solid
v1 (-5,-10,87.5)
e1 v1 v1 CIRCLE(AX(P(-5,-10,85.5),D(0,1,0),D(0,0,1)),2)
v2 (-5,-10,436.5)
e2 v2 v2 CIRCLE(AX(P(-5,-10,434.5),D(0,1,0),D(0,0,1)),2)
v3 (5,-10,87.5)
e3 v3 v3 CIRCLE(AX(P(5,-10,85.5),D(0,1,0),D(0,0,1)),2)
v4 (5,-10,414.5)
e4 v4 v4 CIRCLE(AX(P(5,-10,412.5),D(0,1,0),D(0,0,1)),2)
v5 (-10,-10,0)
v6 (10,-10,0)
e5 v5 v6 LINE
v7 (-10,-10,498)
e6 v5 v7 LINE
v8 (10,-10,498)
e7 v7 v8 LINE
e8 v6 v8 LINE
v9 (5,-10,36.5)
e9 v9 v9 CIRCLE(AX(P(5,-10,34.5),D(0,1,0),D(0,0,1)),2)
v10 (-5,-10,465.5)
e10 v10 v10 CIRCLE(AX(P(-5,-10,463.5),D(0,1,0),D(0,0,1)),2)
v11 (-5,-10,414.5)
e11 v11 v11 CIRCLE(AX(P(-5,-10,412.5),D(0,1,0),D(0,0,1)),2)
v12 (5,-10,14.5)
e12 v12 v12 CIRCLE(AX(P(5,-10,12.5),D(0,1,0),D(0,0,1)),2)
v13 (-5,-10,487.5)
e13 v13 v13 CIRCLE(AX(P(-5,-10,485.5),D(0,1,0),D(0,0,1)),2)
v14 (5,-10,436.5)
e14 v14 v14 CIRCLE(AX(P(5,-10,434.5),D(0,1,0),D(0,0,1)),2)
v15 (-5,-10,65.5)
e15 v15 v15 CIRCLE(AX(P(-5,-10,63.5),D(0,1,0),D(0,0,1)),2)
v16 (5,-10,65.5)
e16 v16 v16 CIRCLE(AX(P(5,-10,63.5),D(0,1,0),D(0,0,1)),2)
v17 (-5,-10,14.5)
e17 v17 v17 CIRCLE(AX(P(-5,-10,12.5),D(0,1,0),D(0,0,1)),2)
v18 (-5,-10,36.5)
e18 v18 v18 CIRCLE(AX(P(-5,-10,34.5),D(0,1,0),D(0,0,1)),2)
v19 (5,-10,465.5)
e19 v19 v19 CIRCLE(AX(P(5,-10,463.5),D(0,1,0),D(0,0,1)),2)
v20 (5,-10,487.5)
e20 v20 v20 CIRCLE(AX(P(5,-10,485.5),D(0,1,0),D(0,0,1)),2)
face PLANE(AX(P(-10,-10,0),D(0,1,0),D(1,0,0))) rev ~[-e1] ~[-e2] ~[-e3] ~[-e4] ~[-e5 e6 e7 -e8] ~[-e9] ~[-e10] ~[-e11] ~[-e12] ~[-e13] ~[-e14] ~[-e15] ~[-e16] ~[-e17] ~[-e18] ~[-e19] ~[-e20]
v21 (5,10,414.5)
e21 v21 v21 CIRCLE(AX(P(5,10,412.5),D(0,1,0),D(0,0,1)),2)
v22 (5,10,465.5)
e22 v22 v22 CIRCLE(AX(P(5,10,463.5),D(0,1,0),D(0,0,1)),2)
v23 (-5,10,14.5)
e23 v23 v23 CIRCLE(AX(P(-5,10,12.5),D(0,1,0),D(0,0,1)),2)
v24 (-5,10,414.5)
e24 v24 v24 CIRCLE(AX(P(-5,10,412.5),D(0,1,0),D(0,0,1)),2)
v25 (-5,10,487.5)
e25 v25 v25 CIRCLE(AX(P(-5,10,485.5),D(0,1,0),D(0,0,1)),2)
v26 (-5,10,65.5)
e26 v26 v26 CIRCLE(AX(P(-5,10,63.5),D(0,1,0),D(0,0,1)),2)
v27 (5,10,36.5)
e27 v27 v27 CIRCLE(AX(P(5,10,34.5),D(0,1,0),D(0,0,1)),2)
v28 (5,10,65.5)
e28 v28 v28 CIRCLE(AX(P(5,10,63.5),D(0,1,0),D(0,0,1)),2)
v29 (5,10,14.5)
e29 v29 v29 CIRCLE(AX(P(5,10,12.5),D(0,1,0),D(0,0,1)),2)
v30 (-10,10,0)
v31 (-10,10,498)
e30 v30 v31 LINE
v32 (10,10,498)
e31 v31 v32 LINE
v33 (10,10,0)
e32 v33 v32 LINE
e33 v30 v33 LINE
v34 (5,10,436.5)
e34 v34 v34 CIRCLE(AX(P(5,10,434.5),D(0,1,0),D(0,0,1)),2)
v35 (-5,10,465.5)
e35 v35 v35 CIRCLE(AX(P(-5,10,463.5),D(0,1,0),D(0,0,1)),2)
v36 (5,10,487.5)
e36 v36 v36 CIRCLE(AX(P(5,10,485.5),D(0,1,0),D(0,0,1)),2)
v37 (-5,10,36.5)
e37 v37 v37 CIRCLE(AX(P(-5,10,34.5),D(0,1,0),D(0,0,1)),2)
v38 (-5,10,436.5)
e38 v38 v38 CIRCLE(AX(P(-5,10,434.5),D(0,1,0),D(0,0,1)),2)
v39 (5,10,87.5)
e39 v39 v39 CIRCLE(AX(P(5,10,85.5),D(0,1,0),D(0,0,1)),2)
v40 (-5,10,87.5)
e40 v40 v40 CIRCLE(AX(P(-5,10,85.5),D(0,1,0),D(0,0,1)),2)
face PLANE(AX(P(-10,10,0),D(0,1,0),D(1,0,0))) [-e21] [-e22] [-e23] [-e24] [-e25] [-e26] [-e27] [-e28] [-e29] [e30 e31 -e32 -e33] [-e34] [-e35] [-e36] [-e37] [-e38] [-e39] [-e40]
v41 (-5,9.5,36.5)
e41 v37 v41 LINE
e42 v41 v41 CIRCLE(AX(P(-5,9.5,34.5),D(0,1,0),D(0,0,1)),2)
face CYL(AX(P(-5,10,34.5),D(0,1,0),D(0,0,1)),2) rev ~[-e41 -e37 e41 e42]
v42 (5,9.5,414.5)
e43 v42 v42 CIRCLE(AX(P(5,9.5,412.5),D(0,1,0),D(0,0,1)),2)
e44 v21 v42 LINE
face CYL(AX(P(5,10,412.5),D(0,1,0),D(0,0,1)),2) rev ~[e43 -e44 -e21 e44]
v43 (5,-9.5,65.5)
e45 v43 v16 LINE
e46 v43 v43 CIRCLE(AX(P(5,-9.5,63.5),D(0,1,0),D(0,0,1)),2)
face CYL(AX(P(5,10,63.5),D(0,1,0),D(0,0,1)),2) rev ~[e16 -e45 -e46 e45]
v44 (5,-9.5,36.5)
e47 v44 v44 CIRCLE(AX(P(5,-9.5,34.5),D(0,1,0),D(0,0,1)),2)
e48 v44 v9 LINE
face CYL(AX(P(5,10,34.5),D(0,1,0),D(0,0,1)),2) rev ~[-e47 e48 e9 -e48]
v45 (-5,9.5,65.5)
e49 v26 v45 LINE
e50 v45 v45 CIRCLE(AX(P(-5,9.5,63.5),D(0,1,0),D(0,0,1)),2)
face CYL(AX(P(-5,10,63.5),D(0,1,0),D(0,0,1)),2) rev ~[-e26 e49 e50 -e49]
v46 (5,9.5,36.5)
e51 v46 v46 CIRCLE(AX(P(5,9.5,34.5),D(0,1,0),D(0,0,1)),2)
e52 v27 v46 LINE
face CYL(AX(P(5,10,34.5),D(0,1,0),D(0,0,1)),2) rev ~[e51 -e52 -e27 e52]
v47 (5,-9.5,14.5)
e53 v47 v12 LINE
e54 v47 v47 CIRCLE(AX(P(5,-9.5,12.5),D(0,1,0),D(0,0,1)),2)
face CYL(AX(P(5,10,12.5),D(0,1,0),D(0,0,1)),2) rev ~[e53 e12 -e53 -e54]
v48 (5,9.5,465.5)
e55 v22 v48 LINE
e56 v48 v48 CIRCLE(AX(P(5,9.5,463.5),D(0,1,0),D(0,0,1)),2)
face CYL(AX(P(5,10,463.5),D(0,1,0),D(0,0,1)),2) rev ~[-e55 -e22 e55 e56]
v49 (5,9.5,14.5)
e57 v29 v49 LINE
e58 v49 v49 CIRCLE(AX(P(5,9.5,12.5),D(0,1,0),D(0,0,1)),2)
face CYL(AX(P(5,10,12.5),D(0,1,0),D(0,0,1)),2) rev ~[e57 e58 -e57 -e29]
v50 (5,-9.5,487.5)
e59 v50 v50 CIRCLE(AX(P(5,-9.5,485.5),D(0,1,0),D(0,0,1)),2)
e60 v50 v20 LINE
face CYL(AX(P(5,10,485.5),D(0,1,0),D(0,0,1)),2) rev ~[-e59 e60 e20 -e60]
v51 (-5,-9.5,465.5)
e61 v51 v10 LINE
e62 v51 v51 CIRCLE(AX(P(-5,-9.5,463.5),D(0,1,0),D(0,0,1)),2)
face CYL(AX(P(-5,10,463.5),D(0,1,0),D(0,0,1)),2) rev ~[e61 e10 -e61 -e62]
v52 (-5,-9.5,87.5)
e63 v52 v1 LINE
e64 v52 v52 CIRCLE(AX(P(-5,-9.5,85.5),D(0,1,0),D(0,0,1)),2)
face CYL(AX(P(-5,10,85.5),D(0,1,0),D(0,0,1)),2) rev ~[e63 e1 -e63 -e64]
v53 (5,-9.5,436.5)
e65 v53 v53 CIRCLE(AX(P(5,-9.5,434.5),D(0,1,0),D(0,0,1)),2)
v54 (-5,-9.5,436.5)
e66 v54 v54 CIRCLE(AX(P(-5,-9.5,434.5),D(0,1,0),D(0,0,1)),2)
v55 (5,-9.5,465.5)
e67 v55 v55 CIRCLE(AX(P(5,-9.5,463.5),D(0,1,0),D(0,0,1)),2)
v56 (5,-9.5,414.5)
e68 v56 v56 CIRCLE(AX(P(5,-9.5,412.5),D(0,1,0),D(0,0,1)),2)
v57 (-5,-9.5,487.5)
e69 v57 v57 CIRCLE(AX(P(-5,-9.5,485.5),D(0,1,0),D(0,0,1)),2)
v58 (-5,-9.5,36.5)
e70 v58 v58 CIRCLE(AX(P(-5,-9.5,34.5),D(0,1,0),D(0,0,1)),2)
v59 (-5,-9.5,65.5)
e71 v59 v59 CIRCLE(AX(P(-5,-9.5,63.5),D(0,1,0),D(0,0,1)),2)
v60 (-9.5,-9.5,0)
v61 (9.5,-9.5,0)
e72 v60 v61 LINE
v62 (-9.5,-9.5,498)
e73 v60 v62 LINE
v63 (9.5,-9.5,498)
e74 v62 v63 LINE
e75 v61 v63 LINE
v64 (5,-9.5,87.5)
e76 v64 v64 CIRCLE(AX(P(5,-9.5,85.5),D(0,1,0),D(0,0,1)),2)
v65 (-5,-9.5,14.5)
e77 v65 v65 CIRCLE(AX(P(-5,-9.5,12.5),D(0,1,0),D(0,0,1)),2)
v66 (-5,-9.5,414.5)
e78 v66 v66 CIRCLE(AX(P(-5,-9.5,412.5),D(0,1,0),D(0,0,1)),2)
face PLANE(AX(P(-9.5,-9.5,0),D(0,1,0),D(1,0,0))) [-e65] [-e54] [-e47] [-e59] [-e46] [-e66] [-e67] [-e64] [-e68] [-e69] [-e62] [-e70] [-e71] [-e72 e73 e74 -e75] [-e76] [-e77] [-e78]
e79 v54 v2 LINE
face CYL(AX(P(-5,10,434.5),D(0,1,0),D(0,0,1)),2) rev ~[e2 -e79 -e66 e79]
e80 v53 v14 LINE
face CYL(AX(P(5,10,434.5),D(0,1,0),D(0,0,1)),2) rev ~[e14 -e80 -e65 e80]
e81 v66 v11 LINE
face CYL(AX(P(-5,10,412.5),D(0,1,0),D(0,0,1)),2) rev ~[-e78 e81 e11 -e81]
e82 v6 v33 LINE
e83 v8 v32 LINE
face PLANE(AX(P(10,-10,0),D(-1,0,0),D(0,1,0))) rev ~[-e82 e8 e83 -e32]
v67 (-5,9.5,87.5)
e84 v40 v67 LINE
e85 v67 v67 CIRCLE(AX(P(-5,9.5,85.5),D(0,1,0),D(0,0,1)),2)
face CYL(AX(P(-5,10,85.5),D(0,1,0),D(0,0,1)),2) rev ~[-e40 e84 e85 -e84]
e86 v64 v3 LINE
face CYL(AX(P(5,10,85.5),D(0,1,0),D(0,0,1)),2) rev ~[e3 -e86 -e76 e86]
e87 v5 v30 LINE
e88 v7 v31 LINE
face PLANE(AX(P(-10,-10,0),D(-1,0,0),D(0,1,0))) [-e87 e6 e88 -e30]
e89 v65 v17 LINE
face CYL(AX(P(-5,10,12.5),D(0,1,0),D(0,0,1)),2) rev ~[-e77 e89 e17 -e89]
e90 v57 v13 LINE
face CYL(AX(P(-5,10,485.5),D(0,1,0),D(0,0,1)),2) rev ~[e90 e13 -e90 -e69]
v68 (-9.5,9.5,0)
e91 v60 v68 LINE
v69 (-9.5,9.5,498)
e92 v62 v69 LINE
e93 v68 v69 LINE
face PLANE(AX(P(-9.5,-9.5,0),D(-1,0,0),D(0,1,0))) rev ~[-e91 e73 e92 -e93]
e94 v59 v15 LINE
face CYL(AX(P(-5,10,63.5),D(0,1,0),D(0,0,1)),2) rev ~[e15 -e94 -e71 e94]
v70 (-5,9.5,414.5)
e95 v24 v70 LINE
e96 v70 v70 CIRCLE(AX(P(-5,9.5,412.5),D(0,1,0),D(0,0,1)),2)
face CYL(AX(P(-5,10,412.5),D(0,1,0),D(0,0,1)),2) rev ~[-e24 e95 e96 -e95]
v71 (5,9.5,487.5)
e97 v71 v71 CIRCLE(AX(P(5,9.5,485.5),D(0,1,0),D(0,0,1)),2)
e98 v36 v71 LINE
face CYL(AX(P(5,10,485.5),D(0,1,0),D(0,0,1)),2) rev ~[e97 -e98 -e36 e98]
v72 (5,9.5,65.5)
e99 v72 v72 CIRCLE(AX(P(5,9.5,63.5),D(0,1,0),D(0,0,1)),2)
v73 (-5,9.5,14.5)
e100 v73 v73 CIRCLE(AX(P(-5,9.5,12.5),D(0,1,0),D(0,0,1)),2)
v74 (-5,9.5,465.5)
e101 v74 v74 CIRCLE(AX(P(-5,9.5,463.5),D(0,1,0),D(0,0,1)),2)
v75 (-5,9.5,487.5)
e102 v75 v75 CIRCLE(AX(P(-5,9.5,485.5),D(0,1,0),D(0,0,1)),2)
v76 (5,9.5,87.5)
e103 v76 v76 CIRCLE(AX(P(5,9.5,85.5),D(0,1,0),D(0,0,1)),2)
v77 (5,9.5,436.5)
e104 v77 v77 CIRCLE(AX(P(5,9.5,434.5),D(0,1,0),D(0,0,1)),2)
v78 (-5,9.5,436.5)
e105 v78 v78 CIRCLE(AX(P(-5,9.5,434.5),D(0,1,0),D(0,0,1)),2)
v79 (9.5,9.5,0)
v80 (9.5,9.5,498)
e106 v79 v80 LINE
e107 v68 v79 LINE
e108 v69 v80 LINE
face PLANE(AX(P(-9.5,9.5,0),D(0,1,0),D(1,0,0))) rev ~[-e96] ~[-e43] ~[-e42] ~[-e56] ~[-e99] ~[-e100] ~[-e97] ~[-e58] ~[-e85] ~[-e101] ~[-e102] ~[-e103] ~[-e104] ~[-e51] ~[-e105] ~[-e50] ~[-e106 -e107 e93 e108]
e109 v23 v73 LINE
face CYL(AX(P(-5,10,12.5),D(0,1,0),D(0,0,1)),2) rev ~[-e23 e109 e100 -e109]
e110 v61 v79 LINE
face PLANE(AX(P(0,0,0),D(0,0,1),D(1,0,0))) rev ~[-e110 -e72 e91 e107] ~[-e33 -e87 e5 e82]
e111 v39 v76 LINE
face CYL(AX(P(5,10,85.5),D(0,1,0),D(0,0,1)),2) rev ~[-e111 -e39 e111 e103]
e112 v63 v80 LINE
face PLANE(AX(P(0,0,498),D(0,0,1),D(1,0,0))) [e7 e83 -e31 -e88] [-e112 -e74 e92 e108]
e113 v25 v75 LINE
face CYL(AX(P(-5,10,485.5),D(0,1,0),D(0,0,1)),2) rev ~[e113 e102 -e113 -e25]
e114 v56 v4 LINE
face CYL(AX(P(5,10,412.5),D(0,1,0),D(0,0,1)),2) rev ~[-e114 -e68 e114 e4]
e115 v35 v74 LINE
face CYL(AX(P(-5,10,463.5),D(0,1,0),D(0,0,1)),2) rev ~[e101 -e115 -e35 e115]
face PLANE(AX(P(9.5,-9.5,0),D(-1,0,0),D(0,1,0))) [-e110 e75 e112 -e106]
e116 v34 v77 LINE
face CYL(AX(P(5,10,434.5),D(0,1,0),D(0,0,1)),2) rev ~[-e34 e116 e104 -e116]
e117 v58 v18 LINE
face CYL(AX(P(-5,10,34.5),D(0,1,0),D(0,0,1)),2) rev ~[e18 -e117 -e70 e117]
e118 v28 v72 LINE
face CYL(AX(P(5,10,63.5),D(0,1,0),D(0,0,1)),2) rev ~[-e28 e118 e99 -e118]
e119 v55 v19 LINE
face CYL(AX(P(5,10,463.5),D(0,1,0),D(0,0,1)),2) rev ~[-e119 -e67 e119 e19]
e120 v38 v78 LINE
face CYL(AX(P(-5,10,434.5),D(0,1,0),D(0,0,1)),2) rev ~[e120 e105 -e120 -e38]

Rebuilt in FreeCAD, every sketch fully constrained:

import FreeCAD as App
import Part
import Sketcher

V = App.Vector
Q = App.Units.Quantity


def add_polygon(sketch, points):
    """Adds a closed chain of lines whose ends are joined by coincident constraints."""
    first, n = sketch.GeometryCount, len(points)
    for a, b in zip(points, points[1:] + points[:1]):
        sketch.addGeometry(Part.LineSegment(App.Vector(*a, 0), App.Vector(*b, 0)), False)
    for i in range(n):
        sketch.addConstraint(Sketcher.Constraint("Coincident", first + i, 2, first + (i + 1) % n, 1))

doc = App.newDocument("Part")
body = doc.addObject("PartDesign::Body", "Body")

# Sketch on XY plane
sketch1 = body.newObject("Sketcher::SketchObject", "Sketch")
sketch1.AttachmentSupport = (doc.getObject("XY_Plane"), [""])
sketch1.MapMode = "FlatFace"
add_polygon(sketch1, [(-10, 10), (-10, -10), (10, -10), (10, 10)])  # lines 0-3
add_polygon(sketch1, [(10, -10), (-10, -10), (-10, 10), (10, 10)])  # lines 4-7
sketch1.addConstraint(Sketcher.Constraint("Vertical", 0))
sketch1.addConstraint(Sketcher.Constraint("Horizontal", 1))
sketch1.addConstraint(Sketcher.Constraint("Vertical", 2))
sketch1.addConstraint(Sketcher.Constraint("Horizontal", 3))
sketch1.addConstraint(Sketcher.Constraint("Horizontal", 4))
sketch1.addConstraint(Sketcher.Constraint("Vertical", 5))
sketch1.addConstraint(Sketcher.Constraint("Horizontal", 6))
sketch1.addConstraint(Sketcher.Constraint("Vertical", 7))
sketch1.addConstraint(Sketcher.Constraint("Symmetric", 0, 2, 2, 2, -1, 1))
sketch1.addConstraint(Sketcher.Constraint("Symmetric", 4, 2, 6, 2, -1, 1))
sketch1.addConstraint(Sketcher.Constraint("Equal", 3, 0))
sketch1.addConstraint(Sketcher.Constraint("Equal", 6, 5))
sketch1.addConstraint(Sketcher.Constraint("DistanceX", 1, 1, 1, 2, Q("20 mm")))
sketch1.addConstraint(Sketcher.Constraint("DistanceX", 4, 2, 4, 1, Q("19 mm")))
pad1 = body.newObject("PartDesign::Pad", "Pad")
pad1.Profile = sketch1
pad1.Length = 498

# Sketch on XZ plane
sketch2 = body.newObject("Sketcher::SketchObject", "Sketch001")
sketch2.AttachmentSupport = (doc.getObject("XZ_Plane"), [""])
sketch2.MapMode = "FlatFace"
sketch2.AttachmentOffset = App.Placement(V(0, 0, -10), App.Rotation())
sketch2.addGeometry(Part.Circle(V(-5, 12.5, 0), V(0, 0, 1), 2), False)
sketch2.addGeometry(Part.Circle(V(-5, 34.5, 0), V(0, 0, 1), 2), False)
sketch2.addGeometry(Part.Circle(V(-5, 85.5, 0), V(0, 0, 1), 2), False)
sketch2.addGeometry(Part.Circle(V(-5, 63.5, 0), V(0, 0, 1), 2), False)
sketch2.addGeometry(Part.Circle(V(-5, 434.5, 0), V(0, 0, 1), 2), False)
sketch2.addGeometry(Part.Circle(V(-5, 412.5, 0), V(0, 0, 1), 2), False)
sketch2.addGeometry(Part.Circle(V(-5, 463.5, 0), V(0, 0, 1), 2), False)
sketch2.addGeometry(Part.Circle(V(-5, 485.5, 0), V(0, 0, 1), 2), False)
sketch2.addGeometry(Part.Circle(V(5, 485.5, 0), V(0, 0, 1), 2), False)
sketch2.addGeometry(Part.Circle(V(5, 463.5, 0), V(0, 0, 1), 2), False)
sketch2.addGeometry(Part.Circle(V(5, 434.5, 0), V(0, 0, 1), 2), False)
sketch2.addGeometry(Part.Circle(V(5, 412.5, 0), V(0, 0, 1), 2), False)
sketch2.addGeometry(Part.Circle(V(5, 85.5, 0), V(0, 0, 1), 2), False)
sketch2.addGeometry(Part.Circle(V(5, 63.5, 0), V(0, 0, 1), 2), False)
sketch2.addGeometry(Part.Circle(V(5, 34.5, 0), V(0, 0, 1), 2), False)
sketch2.addGeometry(Part.Circle(V(5, 12.5, 0), V(0, 0, 1), 2), False)
sketch2.addConstraint(Sketcher.Constraint("Equal", 0, 1))
sketch2.addConstraint(Sketcher.Constraint("Equal", 1, 2))
sketch2.addConstraint(Sketcher.Constraint("Equal", 2, 3))
sketch2.addConstraint(Sketcher.Constraint("Equal", 3, 4))
sketch2.addConstraint(Sketcher.Constraint("Equal", 4, 5))
sketch2.addConstraint(Sketcher.Constraint("Equal", 5, 6))
sketch2.addConstraint(Sketcher.Constraint("Equal", 6, 7))
sketch2.addConstraint(Sketcher.Constraint("Equal", 7, 8))
sketch2.addConstraint(Sketcher.Constraint("Equal", 8, 9))
sketch2.addConstraint(Sketcher.Constraint("Equal", 9, 10))
sketch2.addConstraint(Sketcher.Constraint("Equal", 10, 11))
sketch2.addConstraint(Sketcher.Constraint("Equal", 11, 12))
sketch2.addConstraint(Sketcher.Constraint("Equal", 12, 13))
sketch2.addConstraint(Sketcher.Constraint("Equal", 13, 14))
sketch2.addConstraint(Sketcher.Constraint("Equal", 14, 15))
sketch2.addConstraint(Sketcher.Constraint("Symmetric", 7, 3, 8, 3, -2))
sketch2.addConstraint(Sketcher.Constraint("Symmetric", 6, 3, 9, 3, -2))
sketch2.addConstraint(Sketcher.Constraint("Symmetric", 4, 3, 10, 3, -2))
sketch2.addConstraint(Sketcher.Constraint("Symmetric", 5, 3, 11, 3, -2))
sketch2.addConstraint(Sketcher.Constraint("Symmetric", 2, 3, 12, 3, -2))
sketch2.addConstraint(Sketcher.Constraint("Symmetric", 3, 3, 13, 3, -2))
sketch2.addConstraint(Sketcher.Constraint("Symmetric", 1, 3, 14, 3, -2))
sketch2.addConstraint(Sketcher.Constraint("Symmetric", 0, 3, 15, 3, -2))
sketch2.addConstraint(Sketcher.Constraint("Vertical", 0, 3, 1, 3))
sketch2.addConstraint(Sketcher.Constraint("Vertical", 1, 3, 2, 3))
sketch2.addConstraint(Sketcher.Constraint("Vertical", 2, 3, 3, 3))
sketch2.addConstraint(Sketcher.Constraint("Vertical", 3, 3, 4, 3))
sketch2.addConstraint(Sketcher.Constraint("Vertical", 4, 3, 5, 3))
sketch2.addConstraint(Sketcher.Constraint("Vertical", 5, 3, 6, 3))
sketch2.addConstraint(Sketcher.Constraint("Vertical", 6, 3, 7, 3))
sketch2.addConstraint(Sketcher.Constraint("Diameter", 0, Q("4 mm")))
sketch2.addConstraint(Sketcher.Constraint("DistanceX", 0, 3, -1, 1, Q("5 mm")))
sketch2.addConstraint(Sketcher.Constraint("DistanceY", 0, 3, 1, 3, Q("22 mm")))
sketch2.addConstraint(Sketcher.Constraint("DistanceY", 1, 3, 2, 3, Q("51 mm")))
sketch2.addConstraint(Sketcher.Constraint("DistanceY", 3, 3, 2, 3, Q("22 mm")))
sketch2.addConstraint(Sketcher.Constraint("DistanceY", 2, 3, 4, 3, Q("349 mm")))
sketch2.addConstraint(Sketcher.Constraint("DistanceY", 5, 3, 4, 3, Q("22 mm")))
sketch2.addConstraint(Sketcher.Constraint("DistanceY", 4, 3, 6, 3, Q("29 mm")))
sketch2.addConstraint(Sketcher.Constraint("DistanceY", 6, 3, 7, 3, Q("22 mm")))
sketch2.addConstraint(Sketcher.Constraint("DistanceY", -1, 1, 0, 3, Q("12.5 mm")))
pocket1 = body.newObject("PartDesign::Pocket", "Pocket")
pocket1.Profile = sketch2
pocket1.Length = 20
pocket1.Reversed = True

doc.recompute()
